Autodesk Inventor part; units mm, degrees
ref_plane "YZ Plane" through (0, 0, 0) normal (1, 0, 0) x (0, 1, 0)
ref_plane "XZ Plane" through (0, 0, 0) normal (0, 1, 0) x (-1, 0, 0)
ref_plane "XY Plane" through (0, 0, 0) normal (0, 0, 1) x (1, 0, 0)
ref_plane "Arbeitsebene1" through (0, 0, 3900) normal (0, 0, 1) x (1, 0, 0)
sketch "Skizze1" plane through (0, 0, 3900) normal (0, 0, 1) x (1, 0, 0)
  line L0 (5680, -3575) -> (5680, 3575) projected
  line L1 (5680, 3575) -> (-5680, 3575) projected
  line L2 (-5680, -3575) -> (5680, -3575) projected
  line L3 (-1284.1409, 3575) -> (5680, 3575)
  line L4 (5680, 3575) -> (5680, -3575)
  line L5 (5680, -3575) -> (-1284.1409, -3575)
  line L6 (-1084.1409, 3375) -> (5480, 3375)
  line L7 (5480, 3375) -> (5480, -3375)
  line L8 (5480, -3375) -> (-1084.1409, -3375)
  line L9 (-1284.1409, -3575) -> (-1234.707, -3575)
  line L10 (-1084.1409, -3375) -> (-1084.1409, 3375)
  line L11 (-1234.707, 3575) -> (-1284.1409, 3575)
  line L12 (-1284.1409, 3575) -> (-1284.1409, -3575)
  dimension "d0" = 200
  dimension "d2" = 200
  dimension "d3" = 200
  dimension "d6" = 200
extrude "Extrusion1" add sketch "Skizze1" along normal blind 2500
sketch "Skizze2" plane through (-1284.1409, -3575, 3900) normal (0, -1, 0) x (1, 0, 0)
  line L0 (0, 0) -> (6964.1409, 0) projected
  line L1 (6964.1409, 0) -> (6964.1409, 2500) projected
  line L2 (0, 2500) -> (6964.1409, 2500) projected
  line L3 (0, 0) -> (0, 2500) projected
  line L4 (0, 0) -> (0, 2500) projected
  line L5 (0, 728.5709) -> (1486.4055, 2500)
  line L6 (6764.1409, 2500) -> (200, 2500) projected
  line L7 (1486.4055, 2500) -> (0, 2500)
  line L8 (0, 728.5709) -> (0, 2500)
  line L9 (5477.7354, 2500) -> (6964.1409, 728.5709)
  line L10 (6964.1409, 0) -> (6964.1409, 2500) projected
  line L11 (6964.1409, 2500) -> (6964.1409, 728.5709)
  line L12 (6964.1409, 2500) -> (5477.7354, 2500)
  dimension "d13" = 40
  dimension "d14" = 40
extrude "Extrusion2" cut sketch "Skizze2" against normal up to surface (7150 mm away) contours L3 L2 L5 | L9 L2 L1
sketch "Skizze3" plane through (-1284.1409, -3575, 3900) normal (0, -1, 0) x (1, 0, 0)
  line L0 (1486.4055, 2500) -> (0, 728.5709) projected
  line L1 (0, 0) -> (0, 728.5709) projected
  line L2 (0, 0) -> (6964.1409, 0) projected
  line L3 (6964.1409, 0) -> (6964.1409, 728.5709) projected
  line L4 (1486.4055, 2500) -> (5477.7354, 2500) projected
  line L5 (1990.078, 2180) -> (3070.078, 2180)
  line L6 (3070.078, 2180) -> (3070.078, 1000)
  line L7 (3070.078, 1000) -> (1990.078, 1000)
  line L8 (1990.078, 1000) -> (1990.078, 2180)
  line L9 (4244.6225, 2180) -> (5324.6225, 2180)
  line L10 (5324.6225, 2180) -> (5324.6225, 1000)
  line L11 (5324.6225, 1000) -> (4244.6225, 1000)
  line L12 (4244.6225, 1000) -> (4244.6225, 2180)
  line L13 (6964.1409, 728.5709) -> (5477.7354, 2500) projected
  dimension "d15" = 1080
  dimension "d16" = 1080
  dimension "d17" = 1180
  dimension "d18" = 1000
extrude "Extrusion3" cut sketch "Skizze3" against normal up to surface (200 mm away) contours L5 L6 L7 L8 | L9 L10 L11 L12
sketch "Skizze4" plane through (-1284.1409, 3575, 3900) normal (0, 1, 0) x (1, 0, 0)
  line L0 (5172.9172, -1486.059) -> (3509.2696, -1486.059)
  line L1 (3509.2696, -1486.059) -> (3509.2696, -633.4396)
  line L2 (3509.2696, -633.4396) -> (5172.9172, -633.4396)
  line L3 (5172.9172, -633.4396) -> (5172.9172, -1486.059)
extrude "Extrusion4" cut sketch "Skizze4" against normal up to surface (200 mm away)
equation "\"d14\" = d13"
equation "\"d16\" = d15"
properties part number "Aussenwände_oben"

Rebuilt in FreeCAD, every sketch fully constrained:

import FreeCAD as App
import Part
import Sketcher
from FreeCAD import Vector
Q = App.Units.Quantity

doc = App.newDocument("Part")
body = doc.addObject("PartDesign::Body", "Body")

# Sketch on XY plane
sketch1 = body.newObject("Sketcher::SketchObject", "Sketch")
sketch1.AttachmentSupport = (doc.getObject("XY_Plane"), [""])
sketch1.MapMode = "FlatFace"
sketch1.AttachmentOffset = App.Placement(Vector(0, 0, 3900), App.Rotation())
sketch1.addGeometry(Part.LineSegment(Vector(-1284.1409, -3575, 0), Vector(5680, -3575, 0)), False)
sketch1.addGeometry(Part.LineSegment(Vector(5680, -3575, 0), Vector(5680, 3575, 0)), False)
sketch1.addGeometry(Part.LineSegment(Vector(5680, 3575, 0), Vector(-1284.1409, 3575, 0)), False)
sketch1.addGeometry(Part.LineSegment(Vector(-1284.1409, 3575, 0), Vector(-1284.1409, -3575, 0)), False)
sketch1.addGeometry(Part.LineSegment(Vector(-1084.1409, -3375, 0), Vector(-1084.1409, 3375, 0)), False)
sketch1.addGeometry(Part.LineSegment(Vector(-1084.1409, 3375, 0), Vector(5480, 3375, 0)), False)
sketch1.addGeometry(Part.LineSegment(Vector(5480, 3375, 0), Vector(5480, -3375, 0)), False)
sketch1.addGeometry(Part.LineSegment(Vector(5480, -3375, 0), Vector(-1084.1409, -3375, 0)), False)
sketch1.addConstraint(Sketcher.Constraint("Coincident", 0, 2, 1, 1))
sketch1.addConstraint(Sketcher.Constraint("Coincident", 1, 2, 2, 1))
sketch1.addConstraint(Sketcher.Constraint("Coincident", 2, 2, 3, 1))
sketch1.addConstraint(Sketcher.Constraint("Coincident", 3, 2, 0, 1))
sketch1.addConstraint(Sketcher.Constraint("Coincident", 4, 2, 5, 1))
sketch1.addConstraint(Sketcher.Constraint("Coincident", 5, 2, 6, 1))
sketch1.addConstraint(Sketcher.Constraint("Coincident", 6, 2, 7, 1))
sketch1.addConstraint(Sketcher.Constraint("Coincident", 7, 2, 4, 1))
sketch1.addConstraint(Sketcher.Constraint("Horizontal", 0))
sketch1.addConstraint(Sketcher.Constraint("Vertical", 1))
sketch1.addConstraint(Sketcher.Constraint("Horizontal", 2))
sketch1.addConstraint(Sketcher.Constraint("Vertical", 3))
sketch1.addConstraint(Sketcher.Constraint("Vertical", 4))
sketch1.addConstraint(Sketcher.Constraint("Horizontal", 5))
sketch1.addConstraint(Sketcher.Constraint("Vertical", 6))
sketch1.addConstraint(Sketcher.Constraint("Horizontal", 7))
sketch1.addConstraint(Sketcher.Constraint("DistanceX", 2, 2, 4, 2, Q("200 mm")))
sketch1.addConstraint(Sketcher.Constraint("DistanceY", 4, 2, 2, 2, Q("200 mm")))
sketch1.addConstraint(Sketcher.Constraint("DistanceX", 5, 2, 1, 2, Q("200 mm")))
sketch1.addConstraint(Sketcher.Constraint("DistanceY", 0, 2, 6, 2, Q("200 mm")))
sketch1.addConstraint(Sketcher.Constraint("DistanceY", 1, 1, 1, 2, Q("7150 mm")))
sketch1.addConstraint(Sketcher.Constraint("DistanceX", -1, 1, 0, 2, Q("5680 mm")))
sketch1.addConstraint(Sketcher.Constraint("DistanceY", 0, 2, -1, 1, Q("3575 mm")))
sketch1.addConstraint(Sketcher.Constraint("DistanceX", 0, 1, 0, 2, Q("6964.141 mm")))
pad1 = body.newObject("PartDesign::Pad", "Pad")
pad1.Profile = sketch1
pad1.Length = 2500

# Sketch on XZ plane
sketch2 = body.newObject("Sketcher::SketchObject", "Sketch001")
sketch2.AttachmentSupport = (doc.getObject("XZ_Plane"), [""])
sketch2.MapMode = "FlatFace"
sketch2.AttachmentOffset = App.Placement(Vector(0, 0, 3575), App.Rotation())
sketch2.addGeometry(Part.LineSegment(Vector(-1284.1409, 6400, 0), Vector(-1284.1409, 4628.5709, 0)), False)
sketch2.addGeometry(Part.LineSegment(Vector(-1284.1409, 4628.5709, 0), Vector(202.2646, 6400, 0)), False)
sketch2.addGeometry(Part.LineSegment(Vector(202.2646, 6400, 0), Vector(-1284.1409, 6400, 0)), False)
sketch2.addGeometry(Part.LineSegment(Vector(4193.5945, 6400, 0), Vector(5680, 4628.5709, 0)), False)
sketch2.addGeometry(Part.LineSegment(Vector(5680, 4628.5709, 0), Vector(5680, 6400, 0)), False)
sketch2.addGeometry(Part.LineSegment(Vector(5680, 6400, 0), Vector(4193.5945, 6400, 0)), False)
sketch2.addConstraint(Sketcher.Constraint("Coincident", 0, 2, 1, 1))
sketch2.addConstraint(Sketcher.Constraint("Coincident", 1, 2, 2, 1))
sketch2.addConstraint(Sketcher.Constraint("Coincident", 2, 2, 0, 1))
sketch2.addConstraint(Sketcher.Constraint("Coincident", 3, 2, 4, 1))
sketch2.addConstraint(Sketcher.Constraint("Coincident", 4, 2, 5, 1))
sketch2.addConstraint(Sketcher.Constraint("Coincident", 5, 2, 3, 1))
sketch2.addConstraint(Sketcher.Constraint("Vertical", 0))
sketch2.addConstraint(Sketcher.Constraint("Horizontal", 2))
sketch2.addConstraint(Sketcher.Constraint("Vertical", 4))
sketch2.addConstraint(Sketcher.Constraint("Horizontal", 5))
sketch2.addConstraint(Sketcher.Constraint("Horizontal", 0, 2, 3, 2))
sketch2.addConstraint(Sketcher.Constraint("Horizontal", 2, 2, 4, 2))
sketch2.addConstraint(Sketcher.Constraint("Equal", 2, 5))
sketch2.addConstraint(Sketcher.Constraint("Angle", 1, Q("50 deg")))
sketch2.addConstraint(Sketcher.Constraint("DistanceY", -1, 1, 1, 2, Q("6400 mm")))
sketch2.addConstraint(Sketcher.Constraint("DistanceX", -1, 1, 3, 2, Q("5680 mm")))
sketch2.addConstraint(Sketcher.Constraint("DistanceY", 0, 2, 0, 1, Q("1771.429 mm")))
sketch2.addConstraint(Sketcher.Constraint("DistanceX", 1, 2, 5, 2, Q("3991.33 mm")))
pocket1 = body.newObject("PartDesign::Pocket", "Pocket")
pocket1.Profile = sketch2
pocket1.Length = 7150

# Sketch on XZ plane
sketch3 = body.newObject("Sketcher::SketchObject", "Sketch002")
sketch3.AttachmentSupport = (doc.getObject("XZ_Plane"), [""])
sketch3.MapMode = "FlatFace"
sketch3.AttachmentOffset = App.Placement(Vector(0, 0, 3575), App.Rotation())
sketch3.addGeometry(Part.LineSegment(Vector(1785.9371, 6080, 0), Vector(705.9371, 6080, 0)), False)
sketch3.addGeometry(Part.LineSegment(Vector(705.9371, 6080, 0), Vector(705.9371, 4900, 0)), False)
sketch3.addGeometry(Part.LineSegment(Vector(705.9371, 4900, 0), Vector(1785.9371, 4900, 0)), False)
sketch3.addGeometry(Part.LineSegment(Vector(1785.9371, 4900, 0), Vector(1785.9371, 6080, 0)), False)
sketch3.addGeometry(Part.LineSegment(Vector(4040.4816, 6080, 0), Vector(2960.4816, 6080, 0)), False)
sketch3.addGeometry(Part.LineSegment(Vector(2960.4816, 6080, 0), Vector(2960.4816, 4900, 0)), False)
sketch3.addGeometry(Part.LineSegment(Vector(2960.4816, 4900, 0), Vector(4040.4816, 4900, 0)), False)
sketch3.addGeometry(Part.LineSegment(Vector(4040.4816, 4900, 0), Vector(4040.4816, 6080, 0)), False)
sketch3.addConstraint(Sketcher.Constraint("Coincident", 0, 2, 1, 1))
sketch3.addConstraint(Sketcher.Constraint("Coincident", 1, 2, 2, 1))
sketch3.addConstraint(Sketcher.Constraint("Coincident", 2, 2, 3, 1))
sketch3.addConstraint(Sketcher.Constraint("Coincident", 3, 2, 0, 1))
sketch3.addConstraint(Sketcher.Constraint("Coincident", 4, 2, 5, 1))
sketch3.addConstraint(Sketcher.Constraint("Coincident", 5, 2, 6, 1))
sketch3.addConstraint(Sketcher.Constraint("Coincident", 6, 2, 7, 1))
sketch3.addConstraint(Sketcher.Constraint("Coincident", 7, 2, 4, 1))
sketch3.addConstraint(Sketcher.Constraint("Horizontal", 0))
sketch3.addConstraint(Sketcher.Constraint("Vertical", 1))
sketch3.addConstraint(Sketcher.Constraint("Horizontal", 2))
sketch3.addConstraint(Sketcher.Constraint("Vertical", 3))
sketch3.addConstraint(Sketcher.Constraint("Horizontal", 4))
sketch3.addConstraint(Sketcher.Constraint("Vertical", 5))
sketch3.addConstraint(Sketcher.Constraint("Horizontal", 6))
sketch3.addConstraint(Sketcher.Constraint("Vertical", 7))
sketch3.addConstraint(Sketcher.Constraint("Horizontal", 3, 2, 4, 2))
sketch3.addConstraint(Sketcher.Constraint("Horizontal", 2, 2, 5, 2))
sketch3.addConstraint(Sketcher.Constraint("Equal", 2, 4))
sketch3.addConstraint(Sketcher.Constraint("DistanceX", 0, 2, 0, 1, Q("1080 mm")))
sketch3.addConstraint(Sketcher.Constraint("DistanceY", 1, 2, 1, 1, Q("1180 mm")))
sketch3.addConstraint(Sketcher.Constraint("DistanceY", -1, 1, 0, 2, Q("6080 mm")))
sketch3.addConstraint(Sketcher.Constraint("DistanceX", -1, 1, 0, 2, Q("705.937 mm")))
sketch3.addConstraint(Sketcher.Constraint("DistanceX", -1, 1, 4, 2, Q("2960.4816 mm")))
pocket2 = body.newObject("PartDesign::Pocket", "Pocket001")
pocket2.Profile = sketch3
pocket2.Length = 200

# Sketch on XZ plane
sketch4 = body.newObject("Sketcher::SketchObject", "Sketch003")
sketch4.AttachmentSupport = (doc.getObject("XZ_Plane"), [""])
sketch4.MapMode = "FlatFace"
sketch4.AttachmentOffset = App.Placement(Vector(0, 0, -3575), App.Rotation())
sketch4.addGeometry(Part.LineSegment(Vector(2225.1287, 5386.059, 0), Vector(3888.7763, 5386.059, 0)), False)
sketch4.addGeometry(Part.LineSegment(Vector(3888.7763, 5386.059, 0), Vector(3888.7763, 4533.4396, 0)), False)
sketch4.addGeometry(Part.LineSegment(Vector(3888.7763, 4533.4396, 0), Vector(2225.1287, 4533.4396, 0)), False)
sketch4.addGeometry(Part.LineSegment(Vector(2225.1287, 4533.4396, 0), Vector(2225.1287, 5386.059, 0)), False)
sketch4.addConstraint(Sketcher.Constraint("Coincident", 0, 2, 1, 1))
sketch4.addConstraint(Sketcher.Constraint("Coincident", 1, 2, 2, 1))
sketch4.addConstraint(Sketcher.Constraint("Coincident", 2, 2, 3, 1))
sketch4.addConstraint(Sketcher.Constraint("Coincident", 3, 2, 0, 1))
sketch4.addConstraint(Sketcher.Constraint("Horizontal", 0))
sketch4.addConstraint(Sketcher.Constraint("Vertical", 1))
sketch4.addConstraint(Sketcher.Constraint("Horizontal", 2))
sketch4.addConstraint(Sketcher.Constraint("Vertical", 3))
sketch4.addConstraint(Sketcher.Constraint("DistanceX", 0, 1, 0, 2, Q("1663.6476 mm")))
sketch4.addConstraint(Sketcher.Constraint("DistanceY", 1, 2, 1, 1, Q("852.6194 mm")))
sketch4.addConstraint(Sketcher.Constraint("DistanceY", -1, 1, 0, 2, Q("5386.059 mm")))
sketch4.addConstraint(Sketcher.Constraint("DistanceX", -1, 1, 0, 2, Q("3888.7763 mm")))
pocket3 = body.newObject("PartDesign::Pocket", "Pocket002")
pocket3.Profile = sketch4
pocket3.Length = 200
pocket3.Reversed = True

doc.recompute()
